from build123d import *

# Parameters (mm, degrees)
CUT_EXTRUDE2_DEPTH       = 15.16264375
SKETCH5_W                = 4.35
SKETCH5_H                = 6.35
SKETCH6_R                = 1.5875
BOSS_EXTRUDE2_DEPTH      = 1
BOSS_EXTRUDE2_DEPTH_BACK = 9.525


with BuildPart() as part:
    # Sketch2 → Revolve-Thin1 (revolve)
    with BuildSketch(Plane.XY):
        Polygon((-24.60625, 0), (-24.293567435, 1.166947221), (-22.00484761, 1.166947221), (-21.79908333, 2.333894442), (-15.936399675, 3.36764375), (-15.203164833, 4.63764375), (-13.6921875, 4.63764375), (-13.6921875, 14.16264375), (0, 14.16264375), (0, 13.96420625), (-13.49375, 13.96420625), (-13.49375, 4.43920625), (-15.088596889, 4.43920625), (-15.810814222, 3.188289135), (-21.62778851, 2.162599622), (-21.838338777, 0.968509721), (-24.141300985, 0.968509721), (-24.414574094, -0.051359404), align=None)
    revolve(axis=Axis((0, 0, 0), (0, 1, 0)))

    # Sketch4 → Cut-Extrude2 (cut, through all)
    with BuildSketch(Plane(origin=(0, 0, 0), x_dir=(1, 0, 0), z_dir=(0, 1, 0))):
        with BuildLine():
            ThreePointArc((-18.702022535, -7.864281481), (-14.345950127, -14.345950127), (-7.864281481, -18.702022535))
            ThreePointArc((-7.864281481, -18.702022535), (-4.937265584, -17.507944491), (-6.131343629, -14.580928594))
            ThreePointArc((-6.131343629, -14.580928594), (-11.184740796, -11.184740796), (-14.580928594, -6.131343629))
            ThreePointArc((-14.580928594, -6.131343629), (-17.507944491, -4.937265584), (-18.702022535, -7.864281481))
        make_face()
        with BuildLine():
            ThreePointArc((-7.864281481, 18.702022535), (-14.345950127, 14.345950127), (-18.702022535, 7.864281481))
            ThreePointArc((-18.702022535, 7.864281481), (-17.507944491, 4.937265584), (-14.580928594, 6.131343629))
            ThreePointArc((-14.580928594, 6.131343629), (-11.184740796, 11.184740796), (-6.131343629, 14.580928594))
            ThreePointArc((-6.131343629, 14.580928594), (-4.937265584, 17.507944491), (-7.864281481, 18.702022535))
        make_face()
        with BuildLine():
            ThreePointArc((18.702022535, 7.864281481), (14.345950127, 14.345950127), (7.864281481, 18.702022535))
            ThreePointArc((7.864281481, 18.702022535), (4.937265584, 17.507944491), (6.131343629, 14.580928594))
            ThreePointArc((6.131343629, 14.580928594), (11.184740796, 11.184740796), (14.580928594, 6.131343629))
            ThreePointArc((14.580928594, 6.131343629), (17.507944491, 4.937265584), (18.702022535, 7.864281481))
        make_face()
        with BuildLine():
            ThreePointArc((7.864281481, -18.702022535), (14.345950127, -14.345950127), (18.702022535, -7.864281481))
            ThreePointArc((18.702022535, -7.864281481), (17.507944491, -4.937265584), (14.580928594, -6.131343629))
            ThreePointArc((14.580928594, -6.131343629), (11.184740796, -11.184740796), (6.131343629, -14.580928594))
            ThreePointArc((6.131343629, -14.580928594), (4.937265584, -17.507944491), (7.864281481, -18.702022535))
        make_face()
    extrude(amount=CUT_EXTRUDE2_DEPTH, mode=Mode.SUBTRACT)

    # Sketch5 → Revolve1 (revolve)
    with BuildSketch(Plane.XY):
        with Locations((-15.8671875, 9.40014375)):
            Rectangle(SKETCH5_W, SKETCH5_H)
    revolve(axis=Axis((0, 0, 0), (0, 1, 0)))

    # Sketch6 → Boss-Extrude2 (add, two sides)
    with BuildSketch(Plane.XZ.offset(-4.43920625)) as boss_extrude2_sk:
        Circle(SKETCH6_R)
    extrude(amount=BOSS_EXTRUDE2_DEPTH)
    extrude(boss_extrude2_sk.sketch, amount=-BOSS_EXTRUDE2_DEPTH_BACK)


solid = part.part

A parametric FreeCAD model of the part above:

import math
import FreeCAD as App
import Part
import Sketcher
from FreeCAD import Vector
Q = App.Units.Quantity


def add_polygon(sketch, points):
    """Adds a closed chain of lines whose ends are joined by coincident constraints."""
    first, n = sketch.GeometryCount, len(points)
    for a, b in zip(points, points[1:] + points[:1]):
        sketch.addGeometry(Part.LineSegment(App.Vector(*a, 0), App.Vector(*b, 0)), False)
    for i in range(n):
        sketch.addConstraint(Sketcher.Constraint("Coincident", first + i, 2, first + (i + 1) % n, 1))

doc = App.newDocument("Part")
params = doc.addObject("Spreadsheet::Sheet", "Params")
for row, (alias, value) in enumerate([
    ("sketch1_width", "0.53125 in"),
    ("sketch1_height", "0.375 in"),
    ("sketch1_length", "0.234375 in"),
    ("revolution_angle", "360 deg"),
    ("sketch3_height", "0.25 in"),
    ("revolution2_angle", "360 deg"),
    ("sketch4_diameter", "0.125 in"),
    ("pad1_length", "1 mm"),
    ("pad1_length2", "0.375 in"),
], start=1):
    params.set(f"A{row}", alias)
    params.set(f"B{row}", "=" + value)
    params.setAlias(f"B{row}", alias)

body = doc.addObject("PartDesign::Body", "Body")

# Sketch on XY plane
sketch1 = body.newObject("Sketcher::SketchObject", "Sketch")
sketch1.AttachmentSupport = (doc.getObject("XY_Plane"), [""])
sketch1.MapMode = "FlatFace"
add_polygon(sketch1, [(-24.29, 1.17), (-24.61, 0), (-24.41, -0.05), (-24.14, 0.97), (-21.84, 0.97), (-21.63, 2.16), (-15.81, 3.19), (-15.09, 4.44), (-13.49, 4.44), (-13.49, 13.96), (0, 13.96), (0, 14.16), (-13.69, 14.16), (-13.69, 4.64), (-15.2, 4.64), (-15.94, 3.37), (-21.8, 2.33), (-22, 1.17)])  # lines 0-17
sketch1.addConstraint([
    Sketcher.Constraint("Horizontal", 3),
    Sketcher.Constraint("Horizontal", 7),
    Sketcher.Constraint("Vertical", 8),
    Sketcher.Constraint("Horizontal", 9),
    Sketcher.Constraint("Vertical", 10),
    Sketcher.Constraint("Horizontal", 11),
    Sketcher.Constraint("Vertical", 12),
    Sketcher.Constraint("Horizontal", 13),
    Sketcher.Constraint("Horizontal", 17),
    Sketcher.Constraint("PointOnObject", 0, 2, -1),
    Sketcher.Constraint("PointOnObject", 9, 2, -2),
    Sketcher.Constraint("Perpendicular", 0, 1),
    Sketcher.Constraint("Perpendicular", 1, 2),
    Sketcher.Constraint("Parallel", 6, 14),
    Sketcher.Constraint("Parallel", 5, 15),
    Sketcher.Constraint("Parallel", 4, 16),
    Sketcher.Constraint("Equal", 8, 12),
    Sketcher.Constraint("Angle", 0, Q("-105 deg")),
    Sketcher.Constraint("Angle", 4, Q("80 deg")),
    Sketcher.Constraint("Angle", 5, Q("10 deg")),
    Sketcher.Constraint("Angle", 6, Q("60 deg")),
    Sketcher.Constraint("DistanceX", 9, 1, 9, 2, Q("0.53125 in")),
    Sketcher.Constraint("DistanceY", 8, 1, 8, 2, Q("0.375 in")),
    Sketcher.Constraint("DistanceY", 14, 2, 13, 2, Q("0.05 in")),
    Sketcher.Constraint("Distance", 15, Q("0.234375 in")),
    Sketcher.Constraint("DistanceX", 0, 2, -1, 1, Q("0.96875 in")),
    Sketcher.Constraint("DistanceX", 17, 2, 17, 1, Q("2.28872 mm")),
    Sketcher.Constraint("DistanceX", 2, 2, -1, 1, Q("24.141301 mm")),
    Sketcher.Constraint("DistanceY", -1, 1, 4, 2, Q("2.1626 mm")),
    Sketcher.Constraint("DistanceX", 14, 2, -1, 1, Q("15.9364 mm")),
    Sketcher.Constraint("DistanceX", 4, 2, 12, 2, Q("7.935601 mm")),
    Sketcher.Constraint("Distance", 4, Q("1.212511 mm")),
    Sketcher.Constraint("Distance", 5, Q("5.90671 mm")),
    Sketcher.Constraint("Distance", 16, Q("1.184949 mm")),
    Sketcher.Constraint("DistanceX", 3, 1, 3, 2, Q("2.302962 mm")),
    Sketcher.Constraint("DistanceX", 7, 1, 7, 2, Q("1.594847 mm")),
])
sketch1.setExpression("Constraints[39]", "Params.sketch1_width")
sketch1.setExpression("Constraints[40]", "Params.sketch1_height")
sketch1.setExpression("Constraints[42]", "Params.sketch1_length")
revolution = body.newObject("PartDesign::Revolution", "Revolution")
revolution.Profile = sketch1
revolution.ReferenceAxis = (sketch1, ["V_Axis"])
revolution.setExpression("Angle", "Params.revolution_angle")

# Sketch on XZ plane
sketch2 = body.newObject("Sketcher::SketchObject", "Sketch001")
sketch2.AttachmentSupport = (doc.getObject("XZ_Plane"), [""])
sketch2.MapMode = "FlatFace"
sketch2.addGeometry([
    Part.ArcOfCircle(Part.Circle(Vector(0, 0, 0), Vector(0, 0, 1), 20.3), math.radians(113), math.radians(157)),  # 0
    Part.ArcOfCircle(Part.Circle(Vector(-7, 16.6, 0), Vector(0, 0, 1), 2.2), math.radians(-67), math.radians(113)),  # 1
    Part.ArcOfCircle(Part.Circle(Vector(0, 0, 0), Vector(0, 0, 1), 15.8), math.radians(113), math.radians(157)),  # 2
    Part.ArcOfCircle(Part.Circle(Vector(-16.6, 7, 0), Vector(0, 0, 1), 2.2), math.radians(157), math.radians(337)),  # 3
    Part.ArcOfCircle(Part.Circle(Vector(0, 0, 0), Vector(0, 0, 1), 20.3), math.radians(-157), math.radians(-113)),  # 4
    Part.ArcOfCircle(Part.Circle(Vector(-16.6, -7, 0), Vector(0, 0, 1), 2.2), math.radians(23), math.radians(203)),  # 5
    Part.ArcOfCircle(Part.Circle(Vector(0, 0, 0), Vector(0, 0, 1), 15.8), math.radians(-157), math.radians(-113)),  # 6
    Part.ArcOfCircle(Part.Circle(Vector(-7, -16.6, 0), Vector(0, 0, 1), 2.2), math.radians(-113), math.radians(67)),  # 7
    Part.ArcOfCircle(Part.Circle(Vector(0, 0, 0), Vector(0, 0, 1), 20.3), math.radians(-67), math.radians(-23)),  # 8
    Part.ArcOfCircle(Part.Circle(Vector(7, -16.6, 0), Vector(0, 0, 1), 2.2), math.radians(113), math.radians(293)),  # 9
    Part.ArcOfCircle(Part.Circle(Vector(0, 0, 0), Vector(0, 0, 1), 15.8), math.radians(-67), math.radians(-23)),  # 10
    Part.ArcOfCircle(Part.Circle(Vector(16.6, -7, 0), Vector(0, 0, 1), 2.2), math.radians(-23), math.radians(157)),  # 11
    Part.ArcOfCircle(Part.Circle(Vector(0, 0, 0), Vector(0, 0, 1), 20.3), math.radians(23), math.radians(67)),  # 12
    Part.ArcOfCircle(Part.Circle(Vector(16.6, 7, 0), Vector(0, 0, 1), 2.2), math.radians(-157), math.radians(23)),  # 13
    Part.ArcOfCircle(Part.Circle(Vector(0, 0, 0), Vector(0, 0, 1), 15.8), math.radians(23), math.radians(67)),  # 14
    Part.ArcOfCircle(Part.Circle(Vector(7, 16.6, 0), Vector(0, 0, 1), 2.2), math.radians(67), math.radians(247)),  # 15
], False)
sketch2.addConstraint([
    Sketcher.Constraint("Tangent", 0, 1, 1, 2),
    Sketcher.Constraint("Tangent", 1, 1, 2, 1),
    Sketcher.Constraint("Tangent", 2, 2, 3, 2),
    Sketcher.Constraint("Tangent", 3, 1, 0, 2),
    Sketcher.Constraint("Tangent", 4, 1, 5, 2),
    Sketcher.Constraint("Tangent", 5, 1, 6, 1),
    Sketcher.Constraint("Tangent", 6, 2, 7, 2),
    Sketcher.Constraint("Tangent", 7, 1, 4, 2),
    Sketcher.Constraint("Tangent", 8, 1, 9, 2),
    Sketcher.Constraint("Tangent", 9, 1, 10, 1),
    Sketcher.Constraint("Tangent", 10, 2, 11, 2),
    Sketcher.Constraint("Tangent", 11, 1, 8, 2),
    Sketcher.Constraint("Tangent", 12, 1, 13, 2),
    Sketcher.Constraint("Tangent", 13, 1, 14, 1),
    Sketcher.Constraint("Tangent", 14, 2, 15, 2),
    Sketcher.Constraint("Tangent", 15, 1, 12, 2),
    Sketcher.Constraint("Coincident", 0, 3, -1, 1),
    Sketcher.Constraint("Coincident", 2, 3, -1, 1),
    Sketcher.Constraint("Coincident", 4, 3, -1, 1),
    Sketcher.Constraint("Coincident", 6, 3, -1, 1),
    Sketcher.Constraint("Coincident", 8, 3, -1, 1),
    Sketcher.Constraint("Coincident", 10, 3, -1, 1),
    Sketcher.Constraint("Coincident", 12, 3, -1, 1),
    Sketcher.Constraint("Coincident", 14, 3, -1, 1),
    Sketcher.Constraint("Equal", 0, 4),
    Sketcher.Constraint("Equal", 3, 5),
    Sketcher.Constraint("Equal", 4, 8),
    Sketcher.Constraint("Equal", 7, 9),
    Sketcher.Constraint("Equal", 8, 12),
    Sketcher.Constraint("Equal", 11, 13),
    Sketcher.Constraint("Horizontal", 7, 3, 9, 3),
    Sketcher.Constraint("Horizontal", 5, 3, 11, 3),
    Sketcher.Constraint("Horizontal", 3, 3, 13, 3),
    Sketcher.Constraint("Horizontal", 1, 3, 15, 3),
    Sketcher.Constraint("Vertical", 3, 3, 5, 3),
    Sketcher.Constraint("Vertical", 1, 3, 7, 3),
    Sketcher.Constraint("DistanceY", -1, 1, 0, 1, Q("0.7363001 in")),
    Sketcher.Constraint("DistanceX", 3, 1, -1, 1, Q("0.7363001 in")),
    Sketcher.Constraint("Radius", 0, Q("20.288237 mm")),
    Sketcher.Constraint("Radius", 1, Q("2.235313 mm")),
])
pocket1 = body.newObject("PartDesign::Pocket", "Pocket")
pocket1.Profile = sketch2
pocket1.Type = "ThroughAll"

# Sketch on XY plane
sketch3 = body.newObject("Sketcher::SketchObject", "Sketch002")
sketch3.AttachmentSupport = (doc.getObject("XY_Plane"), [""])
sketch3.MapMode = "FlatFace"
add_polygon(sketch3, [(-18, 12.6), (-18, 6.2), (-13.7, 6.2), (-13.7, 12.6)])  # lines 0-3
sketch3.addConstraint([
    Sketcher.Constraint("Vertical", 0),
    Sketcher.Constraint("Horizontal", 1),
    Sketcher.Constraint("Vertical", 2),
    Sketcher.Constraint("Horizontal", 3),
    Sketcher.Constraint("DistanceY", 0, 2, 0, 1, Q("0.25 in")),
    Sketcher.Constraint("DistanceX", 1, 1, 1, 2, Q("4.35 mm")),
    Sketcher.Constraint("DistanceX", 0, 2, -1, 1, Q("18.042188 mm")),
    Sketcher.Constraint("DistanceY", -1, 1, 0, 2, Q("6.225144 mm")),
])
sketch3.setExpression("Constraints[8]", "Params.sketch3_height")
revolution2 = body.newObject("PartDesign::Revolution", "Revolution001")
revolution2.Profile = sketch3
revolution2.ReferenceAxis = (sketch3, ["V_Axis"])
revolution2.setExpression("Angle", "Params.revolution2_angle")

# Sketch on XZ plane
sketch4 = body.newObject("Sketcher::SketchObject", "Sketch003")
sketch4.AttachmentSupport = (doc.getObject("XZ_Plane"), [""])
sketch4.MapMode = "FlatFace"
sketch4.AttachmentOffset = App.Placement(Vector(0, 0, -4.439206), App.Rotation())
sketch4.addGeometry(Part.Circle(Vector(0, 0, 0), Vector(0, 0, 1), 1.6), False)
sketch4.addConstraint([
    Sketcher.Constraint("Coincident", 0, 3, -1, 1),
    Sketcher.Constraint("Diameter", 0, Q("0.125 in")),
])
sketch4.setExpression("Constraints[1]", "Params.sketch4_diameter")
pad1 = body.newObject("PartDesign::Pad", "Pad")
pad1.Profile = sketch4
pad1.Type = "TwoLengths"
pad1.setExpression("Length", "Params.pad1_length")
pad1.setExpression("Length2", "Params.pad1_length2")

doc.recompute()
